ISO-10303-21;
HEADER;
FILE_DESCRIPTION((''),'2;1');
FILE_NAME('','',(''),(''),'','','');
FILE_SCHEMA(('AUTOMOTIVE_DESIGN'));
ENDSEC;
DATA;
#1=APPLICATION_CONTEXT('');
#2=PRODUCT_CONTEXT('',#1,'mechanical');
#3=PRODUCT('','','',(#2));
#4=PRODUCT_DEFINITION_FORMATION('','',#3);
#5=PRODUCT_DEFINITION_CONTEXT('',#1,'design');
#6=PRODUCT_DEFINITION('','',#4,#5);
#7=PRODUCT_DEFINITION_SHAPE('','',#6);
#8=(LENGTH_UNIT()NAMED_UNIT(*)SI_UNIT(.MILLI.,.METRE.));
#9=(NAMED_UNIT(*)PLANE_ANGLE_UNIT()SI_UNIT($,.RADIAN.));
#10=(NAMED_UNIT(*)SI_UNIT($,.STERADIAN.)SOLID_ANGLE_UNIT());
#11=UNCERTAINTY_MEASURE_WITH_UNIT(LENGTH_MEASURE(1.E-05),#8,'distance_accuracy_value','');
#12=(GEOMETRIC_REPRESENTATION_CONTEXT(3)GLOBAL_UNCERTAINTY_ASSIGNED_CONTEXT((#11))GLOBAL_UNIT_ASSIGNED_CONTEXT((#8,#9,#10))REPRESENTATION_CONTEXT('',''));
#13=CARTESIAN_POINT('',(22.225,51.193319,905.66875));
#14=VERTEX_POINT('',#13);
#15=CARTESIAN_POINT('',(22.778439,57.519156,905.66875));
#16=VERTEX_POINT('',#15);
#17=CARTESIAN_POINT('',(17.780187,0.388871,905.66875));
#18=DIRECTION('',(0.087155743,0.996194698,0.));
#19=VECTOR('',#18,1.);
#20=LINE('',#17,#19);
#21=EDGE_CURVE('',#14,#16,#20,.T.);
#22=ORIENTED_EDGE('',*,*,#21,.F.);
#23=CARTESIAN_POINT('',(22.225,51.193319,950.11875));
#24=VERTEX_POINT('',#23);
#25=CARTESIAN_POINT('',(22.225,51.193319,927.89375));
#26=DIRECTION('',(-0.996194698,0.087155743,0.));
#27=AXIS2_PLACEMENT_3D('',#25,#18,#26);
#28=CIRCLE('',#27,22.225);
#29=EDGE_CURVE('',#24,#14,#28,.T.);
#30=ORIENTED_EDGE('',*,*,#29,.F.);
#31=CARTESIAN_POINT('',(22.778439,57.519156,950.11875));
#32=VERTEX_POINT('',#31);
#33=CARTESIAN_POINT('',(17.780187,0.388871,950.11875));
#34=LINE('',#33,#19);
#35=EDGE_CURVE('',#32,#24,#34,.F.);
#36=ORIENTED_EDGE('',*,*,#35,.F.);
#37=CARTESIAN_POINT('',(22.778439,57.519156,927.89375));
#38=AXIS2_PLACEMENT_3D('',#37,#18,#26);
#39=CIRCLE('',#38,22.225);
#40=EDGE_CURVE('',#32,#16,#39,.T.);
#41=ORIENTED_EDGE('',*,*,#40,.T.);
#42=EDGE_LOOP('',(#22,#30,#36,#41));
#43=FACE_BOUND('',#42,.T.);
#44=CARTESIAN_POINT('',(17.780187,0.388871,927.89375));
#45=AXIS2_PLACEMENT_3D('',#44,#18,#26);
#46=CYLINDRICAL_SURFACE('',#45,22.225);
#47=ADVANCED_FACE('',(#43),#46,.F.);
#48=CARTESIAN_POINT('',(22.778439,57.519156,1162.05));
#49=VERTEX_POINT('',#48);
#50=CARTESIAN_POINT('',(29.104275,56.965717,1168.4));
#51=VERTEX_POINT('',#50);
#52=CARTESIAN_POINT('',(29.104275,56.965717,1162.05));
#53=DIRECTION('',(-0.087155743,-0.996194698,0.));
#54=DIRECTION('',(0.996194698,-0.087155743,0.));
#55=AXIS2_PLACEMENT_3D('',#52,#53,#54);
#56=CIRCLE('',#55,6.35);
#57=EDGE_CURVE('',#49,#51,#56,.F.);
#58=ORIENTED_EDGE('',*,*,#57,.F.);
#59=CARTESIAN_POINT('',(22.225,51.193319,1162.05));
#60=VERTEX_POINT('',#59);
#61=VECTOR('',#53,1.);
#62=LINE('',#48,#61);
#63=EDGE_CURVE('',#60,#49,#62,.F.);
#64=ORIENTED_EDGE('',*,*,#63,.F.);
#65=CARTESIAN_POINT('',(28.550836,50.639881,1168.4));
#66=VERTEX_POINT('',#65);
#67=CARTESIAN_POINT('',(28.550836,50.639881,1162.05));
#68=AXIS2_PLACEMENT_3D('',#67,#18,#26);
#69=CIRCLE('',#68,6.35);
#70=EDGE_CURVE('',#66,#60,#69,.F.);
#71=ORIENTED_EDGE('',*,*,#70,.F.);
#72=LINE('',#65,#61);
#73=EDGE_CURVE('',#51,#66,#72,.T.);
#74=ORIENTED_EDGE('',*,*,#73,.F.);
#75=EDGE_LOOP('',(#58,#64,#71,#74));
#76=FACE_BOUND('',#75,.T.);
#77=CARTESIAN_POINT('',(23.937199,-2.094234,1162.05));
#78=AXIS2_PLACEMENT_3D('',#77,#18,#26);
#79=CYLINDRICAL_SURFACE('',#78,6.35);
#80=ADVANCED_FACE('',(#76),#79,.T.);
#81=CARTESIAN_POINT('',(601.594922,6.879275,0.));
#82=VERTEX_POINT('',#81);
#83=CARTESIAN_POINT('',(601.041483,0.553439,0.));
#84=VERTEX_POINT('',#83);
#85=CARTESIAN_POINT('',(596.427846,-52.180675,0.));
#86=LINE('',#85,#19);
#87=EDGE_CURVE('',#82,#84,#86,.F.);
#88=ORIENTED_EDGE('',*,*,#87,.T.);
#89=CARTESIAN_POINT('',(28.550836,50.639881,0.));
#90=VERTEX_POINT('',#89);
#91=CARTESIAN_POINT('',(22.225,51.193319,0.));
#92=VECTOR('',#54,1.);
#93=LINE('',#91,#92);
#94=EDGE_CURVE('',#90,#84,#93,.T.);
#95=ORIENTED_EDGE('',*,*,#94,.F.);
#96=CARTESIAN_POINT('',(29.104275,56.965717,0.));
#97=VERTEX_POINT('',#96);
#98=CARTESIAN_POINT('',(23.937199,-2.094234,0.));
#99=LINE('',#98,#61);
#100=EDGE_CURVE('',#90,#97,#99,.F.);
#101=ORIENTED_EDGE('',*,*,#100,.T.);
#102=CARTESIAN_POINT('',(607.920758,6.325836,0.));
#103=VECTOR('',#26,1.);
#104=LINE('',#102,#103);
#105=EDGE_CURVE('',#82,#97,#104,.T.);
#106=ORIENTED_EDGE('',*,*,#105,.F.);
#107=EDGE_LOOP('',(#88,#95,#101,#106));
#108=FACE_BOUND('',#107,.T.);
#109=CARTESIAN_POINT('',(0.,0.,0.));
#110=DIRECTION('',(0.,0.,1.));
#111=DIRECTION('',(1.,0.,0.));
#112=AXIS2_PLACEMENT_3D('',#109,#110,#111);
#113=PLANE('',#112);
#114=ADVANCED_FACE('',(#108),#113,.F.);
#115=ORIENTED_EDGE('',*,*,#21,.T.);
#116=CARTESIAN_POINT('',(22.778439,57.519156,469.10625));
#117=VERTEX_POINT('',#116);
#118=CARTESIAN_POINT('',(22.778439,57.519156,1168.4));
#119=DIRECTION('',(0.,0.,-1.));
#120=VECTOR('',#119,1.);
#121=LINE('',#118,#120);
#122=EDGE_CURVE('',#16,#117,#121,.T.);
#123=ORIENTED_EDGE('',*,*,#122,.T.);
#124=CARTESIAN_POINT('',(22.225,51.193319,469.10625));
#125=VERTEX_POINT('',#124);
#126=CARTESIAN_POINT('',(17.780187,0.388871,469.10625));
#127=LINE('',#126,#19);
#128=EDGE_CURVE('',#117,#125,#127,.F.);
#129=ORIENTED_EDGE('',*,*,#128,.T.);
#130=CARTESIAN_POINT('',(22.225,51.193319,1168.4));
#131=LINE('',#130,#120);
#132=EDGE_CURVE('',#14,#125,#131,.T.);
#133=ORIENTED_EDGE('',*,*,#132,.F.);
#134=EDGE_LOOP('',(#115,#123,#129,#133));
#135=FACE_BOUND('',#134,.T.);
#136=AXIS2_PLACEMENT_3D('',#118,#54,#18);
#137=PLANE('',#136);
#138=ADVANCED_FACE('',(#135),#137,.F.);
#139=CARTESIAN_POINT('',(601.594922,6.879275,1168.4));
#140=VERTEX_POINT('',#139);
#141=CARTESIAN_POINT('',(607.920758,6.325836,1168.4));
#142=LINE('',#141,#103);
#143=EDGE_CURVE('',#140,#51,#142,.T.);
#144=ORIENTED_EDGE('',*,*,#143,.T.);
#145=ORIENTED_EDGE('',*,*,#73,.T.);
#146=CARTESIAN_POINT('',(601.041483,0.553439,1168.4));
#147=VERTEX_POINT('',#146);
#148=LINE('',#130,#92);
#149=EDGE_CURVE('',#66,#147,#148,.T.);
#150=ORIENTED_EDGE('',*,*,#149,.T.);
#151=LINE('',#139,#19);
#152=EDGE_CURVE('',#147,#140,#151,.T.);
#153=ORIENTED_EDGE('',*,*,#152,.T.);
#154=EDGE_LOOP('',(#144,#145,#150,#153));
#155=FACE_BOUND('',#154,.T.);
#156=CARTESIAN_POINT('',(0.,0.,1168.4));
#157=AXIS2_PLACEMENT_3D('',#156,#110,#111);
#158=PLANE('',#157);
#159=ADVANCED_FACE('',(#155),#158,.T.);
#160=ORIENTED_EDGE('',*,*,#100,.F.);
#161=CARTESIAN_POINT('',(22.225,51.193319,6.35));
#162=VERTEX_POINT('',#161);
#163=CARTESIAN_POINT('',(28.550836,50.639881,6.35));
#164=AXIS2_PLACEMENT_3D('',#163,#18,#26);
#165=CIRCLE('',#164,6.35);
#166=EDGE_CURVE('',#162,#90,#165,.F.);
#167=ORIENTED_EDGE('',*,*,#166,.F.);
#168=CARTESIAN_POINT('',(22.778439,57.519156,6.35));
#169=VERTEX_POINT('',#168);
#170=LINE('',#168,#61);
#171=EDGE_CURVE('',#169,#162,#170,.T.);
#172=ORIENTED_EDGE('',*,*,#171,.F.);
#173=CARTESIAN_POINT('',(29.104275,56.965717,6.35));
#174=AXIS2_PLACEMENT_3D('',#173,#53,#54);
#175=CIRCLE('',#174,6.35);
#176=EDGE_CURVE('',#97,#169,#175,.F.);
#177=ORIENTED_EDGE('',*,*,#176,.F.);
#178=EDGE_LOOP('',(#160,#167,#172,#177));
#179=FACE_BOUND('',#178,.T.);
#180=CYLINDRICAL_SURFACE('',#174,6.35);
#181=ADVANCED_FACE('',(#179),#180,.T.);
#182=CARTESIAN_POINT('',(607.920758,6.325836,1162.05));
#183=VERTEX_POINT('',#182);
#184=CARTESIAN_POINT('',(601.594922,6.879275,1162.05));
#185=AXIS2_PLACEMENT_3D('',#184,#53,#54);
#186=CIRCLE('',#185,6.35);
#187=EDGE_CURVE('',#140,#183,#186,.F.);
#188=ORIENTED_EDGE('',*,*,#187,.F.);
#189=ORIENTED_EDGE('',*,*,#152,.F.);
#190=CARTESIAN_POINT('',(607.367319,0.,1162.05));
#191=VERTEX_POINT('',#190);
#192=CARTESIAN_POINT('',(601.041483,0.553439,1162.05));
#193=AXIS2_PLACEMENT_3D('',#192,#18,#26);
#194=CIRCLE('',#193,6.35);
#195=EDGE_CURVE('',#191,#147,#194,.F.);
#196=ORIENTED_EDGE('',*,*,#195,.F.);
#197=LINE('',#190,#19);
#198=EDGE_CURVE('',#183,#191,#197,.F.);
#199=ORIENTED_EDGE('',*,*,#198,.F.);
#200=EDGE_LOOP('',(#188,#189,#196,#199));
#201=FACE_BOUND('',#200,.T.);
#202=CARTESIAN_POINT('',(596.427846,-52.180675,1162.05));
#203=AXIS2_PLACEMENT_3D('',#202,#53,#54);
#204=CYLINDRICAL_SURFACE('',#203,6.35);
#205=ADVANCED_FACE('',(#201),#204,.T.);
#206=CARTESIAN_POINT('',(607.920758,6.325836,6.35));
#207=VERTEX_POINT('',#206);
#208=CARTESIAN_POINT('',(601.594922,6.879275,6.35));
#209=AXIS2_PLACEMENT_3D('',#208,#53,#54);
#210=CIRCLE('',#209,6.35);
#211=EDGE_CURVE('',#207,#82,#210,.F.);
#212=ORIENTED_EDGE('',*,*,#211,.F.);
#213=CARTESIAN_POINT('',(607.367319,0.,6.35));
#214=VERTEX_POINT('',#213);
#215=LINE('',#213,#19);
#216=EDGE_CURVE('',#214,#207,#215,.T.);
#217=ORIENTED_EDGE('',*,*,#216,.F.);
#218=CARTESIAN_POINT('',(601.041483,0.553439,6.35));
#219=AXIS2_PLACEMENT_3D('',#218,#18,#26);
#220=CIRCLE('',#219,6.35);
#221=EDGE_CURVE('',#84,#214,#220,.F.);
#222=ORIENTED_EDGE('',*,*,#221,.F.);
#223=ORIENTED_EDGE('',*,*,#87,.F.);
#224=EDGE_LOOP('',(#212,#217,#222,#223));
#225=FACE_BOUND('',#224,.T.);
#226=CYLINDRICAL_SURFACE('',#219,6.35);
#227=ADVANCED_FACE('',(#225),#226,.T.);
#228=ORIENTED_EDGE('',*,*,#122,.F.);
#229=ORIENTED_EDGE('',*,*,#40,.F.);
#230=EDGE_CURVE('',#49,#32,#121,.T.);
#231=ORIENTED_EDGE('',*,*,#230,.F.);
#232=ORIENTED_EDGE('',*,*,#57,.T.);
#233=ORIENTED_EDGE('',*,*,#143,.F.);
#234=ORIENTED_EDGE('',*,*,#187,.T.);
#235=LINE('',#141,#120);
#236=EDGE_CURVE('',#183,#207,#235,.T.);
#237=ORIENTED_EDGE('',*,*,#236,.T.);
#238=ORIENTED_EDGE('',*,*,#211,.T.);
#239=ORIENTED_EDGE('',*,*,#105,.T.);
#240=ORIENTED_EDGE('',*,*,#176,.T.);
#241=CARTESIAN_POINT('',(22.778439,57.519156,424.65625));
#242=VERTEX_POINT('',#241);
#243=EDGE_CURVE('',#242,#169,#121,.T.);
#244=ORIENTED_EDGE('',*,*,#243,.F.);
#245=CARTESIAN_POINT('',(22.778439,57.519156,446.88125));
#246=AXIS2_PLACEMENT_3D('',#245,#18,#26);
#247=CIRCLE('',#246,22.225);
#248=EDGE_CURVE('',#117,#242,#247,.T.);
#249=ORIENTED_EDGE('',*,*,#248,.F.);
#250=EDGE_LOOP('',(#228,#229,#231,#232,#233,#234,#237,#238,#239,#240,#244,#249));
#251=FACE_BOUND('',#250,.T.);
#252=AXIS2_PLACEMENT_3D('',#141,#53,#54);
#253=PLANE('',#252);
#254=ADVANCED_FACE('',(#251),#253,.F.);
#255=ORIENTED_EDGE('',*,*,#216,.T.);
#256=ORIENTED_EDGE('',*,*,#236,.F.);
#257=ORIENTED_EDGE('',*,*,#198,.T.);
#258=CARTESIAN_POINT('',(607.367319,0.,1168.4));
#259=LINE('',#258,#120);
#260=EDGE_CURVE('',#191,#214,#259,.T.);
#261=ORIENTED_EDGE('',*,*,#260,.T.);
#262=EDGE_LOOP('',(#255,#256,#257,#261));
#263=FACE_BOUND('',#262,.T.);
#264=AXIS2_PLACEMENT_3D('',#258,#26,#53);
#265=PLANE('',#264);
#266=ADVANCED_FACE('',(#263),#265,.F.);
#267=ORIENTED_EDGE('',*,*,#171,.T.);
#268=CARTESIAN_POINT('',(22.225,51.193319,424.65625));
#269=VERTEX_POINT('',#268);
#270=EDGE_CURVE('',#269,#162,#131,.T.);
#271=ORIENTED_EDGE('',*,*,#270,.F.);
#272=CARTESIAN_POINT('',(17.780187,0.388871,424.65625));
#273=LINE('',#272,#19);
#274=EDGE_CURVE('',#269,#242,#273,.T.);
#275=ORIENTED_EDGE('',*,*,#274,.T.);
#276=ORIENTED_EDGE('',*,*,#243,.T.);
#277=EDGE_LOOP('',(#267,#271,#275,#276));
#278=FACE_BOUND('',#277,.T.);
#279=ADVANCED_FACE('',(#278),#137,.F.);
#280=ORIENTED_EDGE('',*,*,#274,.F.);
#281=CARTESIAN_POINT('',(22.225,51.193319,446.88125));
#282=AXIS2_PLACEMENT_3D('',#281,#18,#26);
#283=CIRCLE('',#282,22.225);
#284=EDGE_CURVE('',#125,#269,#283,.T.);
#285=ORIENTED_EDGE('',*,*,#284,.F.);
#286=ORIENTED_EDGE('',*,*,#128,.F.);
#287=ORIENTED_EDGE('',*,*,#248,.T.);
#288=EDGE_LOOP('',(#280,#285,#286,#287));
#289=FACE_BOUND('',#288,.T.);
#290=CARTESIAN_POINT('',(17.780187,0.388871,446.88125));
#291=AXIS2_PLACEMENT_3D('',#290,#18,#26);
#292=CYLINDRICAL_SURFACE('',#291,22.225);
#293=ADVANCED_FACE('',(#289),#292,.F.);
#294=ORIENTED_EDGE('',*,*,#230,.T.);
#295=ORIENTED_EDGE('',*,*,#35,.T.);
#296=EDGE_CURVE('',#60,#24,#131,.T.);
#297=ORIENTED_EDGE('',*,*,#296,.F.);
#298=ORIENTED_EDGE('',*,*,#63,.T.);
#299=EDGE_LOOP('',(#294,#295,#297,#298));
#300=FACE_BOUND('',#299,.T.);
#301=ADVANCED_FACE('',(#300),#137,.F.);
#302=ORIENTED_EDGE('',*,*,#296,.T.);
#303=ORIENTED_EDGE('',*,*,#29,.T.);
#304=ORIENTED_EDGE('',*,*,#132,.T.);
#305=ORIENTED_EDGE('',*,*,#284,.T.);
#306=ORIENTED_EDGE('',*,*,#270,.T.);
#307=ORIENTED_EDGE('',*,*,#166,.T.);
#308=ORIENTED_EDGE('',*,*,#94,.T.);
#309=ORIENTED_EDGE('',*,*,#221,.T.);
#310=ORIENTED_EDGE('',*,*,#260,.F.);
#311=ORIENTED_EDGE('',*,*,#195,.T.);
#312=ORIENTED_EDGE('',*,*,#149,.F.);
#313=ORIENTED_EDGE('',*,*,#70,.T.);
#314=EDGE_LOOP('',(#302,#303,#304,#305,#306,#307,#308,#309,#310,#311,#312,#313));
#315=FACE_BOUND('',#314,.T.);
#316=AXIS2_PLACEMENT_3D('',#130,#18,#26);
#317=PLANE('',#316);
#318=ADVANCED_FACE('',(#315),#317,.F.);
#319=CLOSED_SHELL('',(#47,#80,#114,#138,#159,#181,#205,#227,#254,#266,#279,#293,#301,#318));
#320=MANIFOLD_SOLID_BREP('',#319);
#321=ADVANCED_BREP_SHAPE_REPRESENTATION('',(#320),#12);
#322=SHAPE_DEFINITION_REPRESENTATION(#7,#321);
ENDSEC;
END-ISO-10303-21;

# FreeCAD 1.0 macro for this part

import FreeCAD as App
import Part
import Sketcher
from FreeCAD import Vector
Q = App.Units.Quantity


def edges_at(feature, points):
    """Names of the edges that pass closest to the given points."""
    edges = feature.Shape.Edges
    near = lambda p: min(range(len(edges)), key=lambda i: edges[i].distToShape(Part.Vertex(*p))[0])
    return sorted({f"Edge{near(p) + 1}" for p in points})

doc = App.newDocument("Part")
body = doc.addObject("PartDesign::Body", "Body")

# Sketch on XY plane
sketch1 = doc.addObject("Sketcher::SketchObject", "Sketch")
body.addObject(sketch1)
sketch1.AttachmentSupport = (doc.XY_Plane, [""])
sketch1.MapMode = "FlatFace"
sketch1.addGeometry([
    Part.LineSegment(Vector(22, 51, 0), Vector(607, 0, 0)),
    Part.LineSegment(Vector(607, 0, 0), Vector(608, 6, 0)),
    Part.LineSegment(Vector(608, 6, 0), Vector(23, 58, 0)),
    Part.LineSegment(Vector(23, 58, 0), Vector(22, 51, 0)),
], False)
sketch1.addConstraint([
    Sketcher.Constraint("Coincident", 0, 2, 1, 1),
    Sketcher.Constraint("Coincident", 1, 2, 2, 1),
    Sketcher.Constraint("Coincident", 2, 2, 3, 1),
    Sketcher.Constraint("Coincident", 3, 2, 0, 1),
    Sketcher.Constraint("PointOnObject", 0, 2, -1),
    Sketcher.Constraint("Perpendicular", 0, 1),
    Sketcher.Constraint("Perpendicular", 1, 2),
    Sketcher.Constraint("Perpendicular", 2, 3),
    Sketcher.Constraint("Angle", 0, Q("-5 deg")),
    Sketcher.Constraint("Distance", 1, Q("0.25 in")),
    Sketcher.Constraint("DistanceX", -1, 1, 3, 2, Q("0.875 in")),
    Sketcher.Constraint("Distance", 0, 587.377468),
])
pad1 = doc.addObject("PartDesign::Pad", "Pad")
body.addObject(pad1)
pad1.Profile = sketch1
pad1.Length = Q("46 in")

# Sketch on an angled plane
sketch2 = doc.addObject("Sketcher::SketchObject", "Sketch001")
body.addObject(sketch2)
sketch2.Placement = App.Placement(Vector(5.167076, 59.05995, 0), App.Rotation(Vector(0.996194698, -0.087155743, 0), Vector(0, 0, -1), Vector(0.087155743, 0.996194698, 0), "ZXY"))
sketch2.addGeometry([
    Part.Circle(Vector(18, -447, 0), Vector(0, 0, 1), 22),
    Part.Circle(Vector(18, -928, 0), Vector(0, 0, 1), 22),
], False)
sketch2.addConstraint([
    Sketcher.Constraint("Equal", 0, 1),
    Sketcher.Constraint("Vertical", 0, 3, 1, 3),
    Sketcher.Constraint("Diameter", 0, Q("1.75 in")),
    Sketcher.Constraint("DistanceY", 0, 3, -1, 1, Q("17.59375 in")),
    Sketcher.Constraint("DistanceY", 1, 3, -1, 1, Q("36.53125 in")),
    Sketcher.Constraint("DistanceX", -1, 1, 0, 3, 17.678635),
])
pocket1 = doc.addObject("PartDesign::Pocket", "Pocket")
body.addObject(pocket1)
pocket1.Profile = sketch2
pocket1.Type = "ThroughAll"
doc.recompute()

fillet = doc.addObject("PartDesign::Fillet", "Fillet")
body.addObject(fillet)
fillet.Base = (pocket1, edges_at(pocket1, [
    (607.644, 3.163, 1168.4),
    (22.502, 54.356, 1168.4),
    (607.644, 3.163, 0),
    (22.502, 54.356, 0),
]))
fillet.Radius = Q("0.25 in")

doc.recompute()
